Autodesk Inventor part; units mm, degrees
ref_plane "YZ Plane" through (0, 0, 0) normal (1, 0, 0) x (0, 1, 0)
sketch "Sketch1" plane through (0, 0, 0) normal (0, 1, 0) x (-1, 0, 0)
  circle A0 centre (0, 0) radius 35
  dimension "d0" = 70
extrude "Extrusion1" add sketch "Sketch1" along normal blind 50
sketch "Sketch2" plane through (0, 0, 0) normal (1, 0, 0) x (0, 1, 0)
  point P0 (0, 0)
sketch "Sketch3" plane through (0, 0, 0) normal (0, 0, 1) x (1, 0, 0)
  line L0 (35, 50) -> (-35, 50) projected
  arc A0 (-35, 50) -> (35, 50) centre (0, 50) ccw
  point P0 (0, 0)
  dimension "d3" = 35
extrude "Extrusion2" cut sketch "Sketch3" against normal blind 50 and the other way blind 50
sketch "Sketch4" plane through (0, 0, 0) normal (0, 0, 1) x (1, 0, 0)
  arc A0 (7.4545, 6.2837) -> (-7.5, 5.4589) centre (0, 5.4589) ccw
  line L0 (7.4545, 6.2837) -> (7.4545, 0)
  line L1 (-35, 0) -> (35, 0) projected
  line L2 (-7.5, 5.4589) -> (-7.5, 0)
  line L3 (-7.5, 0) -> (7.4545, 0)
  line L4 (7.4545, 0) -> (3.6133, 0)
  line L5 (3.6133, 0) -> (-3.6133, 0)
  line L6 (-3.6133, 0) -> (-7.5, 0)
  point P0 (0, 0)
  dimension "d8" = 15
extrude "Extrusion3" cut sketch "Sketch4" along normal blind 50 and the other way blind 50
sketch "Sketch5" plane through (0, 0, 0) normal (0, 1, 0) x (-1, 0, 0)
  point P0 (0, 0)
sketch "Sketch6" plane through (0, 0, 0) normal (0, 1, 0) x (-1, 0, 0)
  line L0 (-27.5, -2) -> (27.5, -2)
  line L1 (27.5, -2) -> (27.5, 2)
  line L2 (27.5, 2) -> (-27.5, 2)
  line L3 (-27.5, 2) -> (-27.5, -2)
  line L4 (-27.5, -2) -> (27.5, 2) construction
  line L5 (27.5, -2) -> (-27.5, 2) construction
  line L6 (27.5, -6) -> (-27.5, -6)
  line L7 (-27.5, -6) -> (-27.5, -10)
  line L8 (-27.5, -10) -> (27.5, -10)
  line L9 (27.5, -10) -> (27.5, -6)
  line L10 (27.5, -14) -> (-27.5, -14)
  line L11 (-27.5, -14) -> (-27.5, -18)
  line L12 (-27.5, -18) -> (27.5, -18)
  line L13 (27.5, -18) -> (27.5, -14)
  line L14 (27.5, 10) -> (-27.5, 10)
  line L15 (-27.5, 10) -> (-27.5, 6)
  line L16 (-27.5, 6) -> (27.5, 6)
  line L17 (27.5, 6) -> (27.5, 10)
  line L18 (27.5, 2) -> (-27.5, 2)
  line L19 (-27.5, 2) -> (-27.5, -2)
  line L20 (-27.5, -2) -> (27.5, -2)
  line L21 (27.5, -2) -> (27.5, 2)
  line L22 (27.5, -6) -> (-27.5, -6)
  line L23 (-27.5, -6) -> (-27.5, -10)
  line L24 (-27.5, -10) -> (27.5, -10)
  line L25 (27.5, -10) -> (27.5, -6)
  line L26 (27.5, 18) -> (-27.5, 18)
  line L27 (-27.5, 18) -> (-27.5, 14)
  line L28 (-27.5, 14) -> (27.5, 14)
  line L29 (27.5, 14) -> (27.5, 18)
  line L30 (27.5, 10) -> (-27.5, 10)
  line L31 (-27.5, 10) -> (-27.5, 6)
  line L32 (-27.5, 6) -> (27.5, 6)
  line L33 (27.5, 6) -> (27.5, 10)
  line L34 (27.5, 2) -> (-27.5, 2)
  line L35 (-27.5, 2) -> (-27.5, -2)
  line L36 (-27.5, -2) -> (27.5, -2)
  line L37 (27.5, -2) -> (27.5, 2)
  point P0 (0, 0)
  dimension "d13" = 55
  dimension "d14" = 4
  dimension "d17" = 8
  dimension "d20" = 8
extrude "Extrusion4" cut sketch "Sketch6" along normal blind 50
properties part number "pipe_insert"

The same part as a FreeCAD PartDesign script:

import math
import FreeCAD as App
import Part
import Sketcher

V = App.Vector

doc = App.newDocument("Part")
body = doc.addObject("PartDesign::Body", "Body")

sketch1 = body.newObject("Sketcher::SketchObject", "Sketch")
sketch1.AttachmentSupport = (doc.getObject("XZ_Plane"), [""])
sketch1.MapMode = "FlatFace"
sketch1.addGeometry(Part.Circle(V(0, 0, 0), V(0, 0, 1), 35), False)
sketch1.addConstraint(Sketcher.Constraint("Coincident", 0, 3, -1, 1))
sketch1.addConstraint(Sketcher.Constraint("Diameter", 0, 70.0))
pad1 = body.newObject("PartDesign::Pad", "Pad")
pad1.Profile = sketch1
pad1.Length = 50
pad1.Reversed = True

sketch2 = body.newObject("Sketcher::SketchObject", "Sketch001")
sketch2.AttachmentSupport = (doc.getObject("XY_Plane"), [""])
sketch2.MapMode = "FlatFace"
sketch2.addGeometry(Part.ArcOfCircle(Part.Circle(V(0, 50, 0), V(0, 0, 1), 35), math.radians(180), math.radians(360)), False)
sketch2.addGeometry(Part.LineSegment(V(35, 50, 0), V(-35, 50, 0)), False)
sketch2.addConstraint(Sketcher.Constraint("Coincident", 0, 1, 1, 2))
sketch2.addConstraint(Sketcher.Constraint("Coincident", 1, 1, 0, 2))
sketch2.addConstraint(Sketcher.Constraint("Horizontal", 1))
sketch2.addConstraint(Sketcher.Constraint("PointOnObject", 0, 3, -2))
sketch2.addConstraint(Sketcher.Constraint("Radius", 0, 35.0))
sketch2.addConstraint(Sketcher.Constraint("DistanceY", -1, 1, 0, 3, 50.0))
sketch2.addConstraint(Sketcher.Constraint("DistanceY", -1, 1, 0, 1, 50.0))
pocket1 = body.newObject("PartDesign::Pocket", "Pocket")
pocket1.Profile = sketch2
pocket1.Type = "ThroughAll"
pocket1.Midplane = True

sketch3 = body.newObject("Sketcher::SketchObject", "Sketch002")
sketch3.AttachmentSupport = (doc.getObject("XY_Plane"), [""])
sketch3.MapMode = "FlatFace"
sketch3.addGeometry(Part.LineSegment(V(7, 0, 0), V(7, 6, 0)), False)
sketch3.addGeometry(Part.ArcOfCircle(Part.Circle(V(0, 5, 0), V(0, 0, 1), 7), math.radians(6), math.radians(180)), False)
sketch3.addGeometry(Part.LineSegment(V(-8, 5, 0), V(-8, 0, 0)), False)
sketch3.addGeometry(Part.LineSegment(V(-8, 0, 0), V(7, 0, 0)), False)
sketch3.addConstraint(Sketcher.Constraint("Coincident", 0, 2, 1, 1))
sketch3.addConstraint(Sketcher.Constraint("Tangent", 1, 2, 2, 1))
sketch3.addConstraint(Sketcher.Constraint("Coincident", 2, 2, 3, 1))
sketch3.addConstraint(Sketcher.Constraint("Coincident", 3, 2, 0, 1))
sketch3.addConstraint(Sketcher.Constraint("Vertical", 0))
sketch3.addConstraint(Sketcher.Constraint("Vertical", 2))
sketch3.addConstraint(Sketcher.Constraint("Horizontal", 3))
sketch3.addConstraint(Sketcher.Constraint("PointOnObject", 1, 3, -2))
sketch3.addConstraint(Sketcher.Constraint("PointOnObject", 2, 2, -1))
sketch3.addConstraint(Sketcher.Constraint("Radius", 1, 7.5))
sketch3.addConstraint(Sketcher.Constraint("DistanceY", 2, 2, 2, 1, 5.459))
sketch3.addConstraint(Sketcher.Constraint("DistanceX", 3, 1, 3, 2, 14.9545))
pocket2 = body.newObject("PartDesign::Pocket", "Pocket001")
pocket2.Profile = sketch3
pocket2.Type = "ThroughAll"
pocket2.Midplane = True

sketch4 = body.newObject("Sketcher::SketchObject", "Sketch003")
sketch4.AttachmentSupport = (doc.getObject("XZ_Plane"), [""])
sketch4.MapMode = "FlatFace"
sketch4.addGeometry(Part.LineSegment(V(27.5, 2, 0), V(27.5, -2, 0)), False)
sketch4.addGeometry(Part.LineSegment(V(27.5, -2, 0), V(-27.5, -2, 0)), False)
sketch4.addGeometry(Part.LineSegment(V(-27.5, -2, 0), V(-27.5, 2, 0)), False)
sketch4.addGeometry(Part.LineSegment(V(-27.5, 2, 0), V(27.5, 2, 0)), False)
sketch4.addGeometry(Part.LineSegment(V(-27.5, -10, 0), V(-27.5, -6, 0)), False)
sketch4.addGeometry(Part.LineSegment(V(-27.5, -6, 0), V(27.5, -6, 0)), False)
sketch4.addGeometry(Part.LineSegment(V(27.5, -6, 0), V(27.5, -10, 0)), False)
sketch4.addGeometry(Part.LineSegment(V(27.5, -10, 0), V(-27.5, -10, 0)), False)
sketch4.addGeometry(Part.LineSegment(V(-27.5, -18, 0), V(-27.5, -14, 0)), False)
sketch4.addGeometry(Part.LineSegment(V(-27.5, -14, 0), V(27.5, -14, 0)), False)
sketch4.addGeometry(Part.LineSegment(V(27.5, -14, 0), V(27.5, -18, 0)), False)
sketch4.addGeometry(Part.LineSegment(V(27.5, -18, 0), V(-27.5, -18, 0)), False)
sketch4.addGeometry(Part.LineSegment(V(-27.5, 6, 0), V(-27.5, 10, 0)), False)
sketch4.addGeometry(Part.LineSegment(V(-27.5, 10, 0), V(27.5, 10, 0)), False)
sketch4.addGeometry(Part.LineSegment(V(27.5, 10, 0), V(27.5, 6, 0)), False)
sketch4.addGeometry(Part.LineSegment(V(27.5, 6, 0), V(-27.5, 6, 0)), False)
sketch4.addGeometry(Part.LineSegment(V(-27.5, 14, 0), V(-27.5, 18, 0)), False)
sketch4.addGeometry(Part.LineSegment(V(-27.5, 18, 0), V(27.5, 18, 0)), False)
sketch4.addGeometry(Part.LineSegment(V(27.5, 18, 0), V(27.5, 14, 0)), False)
sketch4.addGeometry(Part.LineSegment(V(27.5, 14, 0), V(-27.5, 14, 0)), False)
sketch4.addConstraint(Sketcher.Constraint("Coincident", 0, 2, 1, 1))
sketch4.addConstraint(Sketcher.Constraint("Coincident", 1, 2, 2, 1))
sketch4.addConstraint(Sketcher.Constraint("Coincident", 2, 2, 3, 1))
sketch4.addConstraint(Sketcher.Constraint("Coincident", 3, 2, 0, 1))
sketch4.addConstraint(Sketcher.Constraint("Coincident", 4, 2, 5, 1))
sketch4.addConstraint(Sketcher.Constraint("Coincident", 5, 2, 6, 1))
sketch4.addConstraint(Sketcher.Constraint("Coincident", 6, 2, 7, 1))
sketch4.addConstraint(Sketcher.Constraint("Coincident", 7, 2, 4, 1))
sketch4.addConstraint(Sketcher.Constraint("Coincident", 8, 2, 9, 1))
sketch4.addConstraint(Sketcher.Constraint("Coincident", 9, 2, 10, 1))
sketch4.addConstraint(Sketcher.Constraint("Coincident", 10, 2, 11, 1))
sketch4.addConstraint(Sketcher.Constraint("Coincident", 11, 2, 8, 1))
sketch4.addConstraint(Sketcher.Constraint("Coincident", 12, 2, 13, 1))
sketch4.addConstraint(Sketcher.Constraint("Coincident", 13, 2, 14, 1))
sketch4.addConstraint(Sketcher.Constraint("Coincident", 14, 2, 15, 1))
sketch4.addConstraint(Sketcher.Constraint("Coincident", 15, 2, 12, 1))
sketch4.addConstraint(Sketcher.Constraint("Coincident", 16, 2, 17, 1))
sketch4.addConstraint(Sketcher.Constraint("Coincident", 17, 2, 18, 1))
sketch4.addConstraint(Sketcher.Constraint("Coincident", 18, 2, 19, 1))
sketch4.addConstraint(Sketcher.Constraint("Coincident", 19, 2, 16, 1))
sketch4.addConstraint(Sketcher.Constraint("Vertical", 0))
sketch4.addConstraint(Sketcher.Constraint("Horizontal", 1))
sketch4.addConstraint(Sketcher.Constraint("Vertical", 2))
sketch4.addConstraint(Sketcher.Constraint("Horizontal", 3))
sketch4.addConstraint(Sketcher.Constraint("Vertical", 4))
sketch4.addConstraint(Sketcher.Constraint("Horizontal", 5))
sketch4.addConstraint(Sketcher.Constraint("Vertical", 6))
sketch4.addConstraint(Sketcher.Constraint("Horizontal", 7))
sketch4.addConstraint(Sketcher.Constraint("Vertical", 8))
sketch4.addConstraint(Sketcher.Constraint("Horizontal", 9))
sketch4.addConstraint(Sketcher.Constraint("Vertical", 10))
sketch4.addConstraint(Sketcher.Constraint("Horizontal", 11))
sketch4.addConstraint(Sketcher.Constraint("Vertical", 12))
sketch4.addConstraint(Sketcher.Constraint("Horizontal", 13))
sketch4.addConstraint(Sketcher.Constraint("Vertical", 14))
sketch4.addConstraint(Sketcher.Constraint("Horizontal", 15))
sketch4.addConstraint(Sketcher.Constraint("Vertical", 16))
sketch4.addConstraint(Sketcher.Constraint("Horizontal", 17))
sketch4.addConstraint(Sketcher.Constraint("Vertical", 18))
sketch4.addConstraint(Sketcher.Constraint("Horizontal", 19))
sketch4.addConstraint(Sketcher.Constraint("Symmetric", 0, 2, 2, 2, -1, 1))
sketch4.addConstraint(Sketcher.Constraint("Symmetric", 6, 2, 12, 2, -1, 1))
sketch4.addConstraint(Sketcher.Constraint("Symmetric", 4, 2, 14, 2, -1, 1))
sketch4.addConstraint(Sketcher.Constraint("Symmetric", 10, 2, 16, 2, -1, 1))
sketch4.addConstraint(Sketcher.Constraint("Symmetric", 8, 2, 18, 2, -1, 1))
sketch4.addConstraint(Sketcher.Constraint("Vertical", 2, 2, 4, 2))
sketch4.addConstraint(Sketcher.Constraint("Vertical", 3, 2, 5, 2))
sketch4.addConstraint(Sketcher.Constraint("Vertical", 7, 2, 8, 2))
sketch4.addConstraint(Sketcher.Constraint("Vertical", 6, 2, 9, 2))
sketch4.addConstraint(Sketcher.Constraint("Equal", 2, 4))
sketch4.addConstraint(Sketcher.Constraint("Equal", 6, 8))
sketch4.addConstraint(Sketcher.Constraint("DistanceX", 1, 2, 1, 1, 55.0))
sketch4.addConstraint(Sketcher.Constraint("DistanceY", 0, 2, 0, 1, 4.0))
sketch4.addConstraint(Sketcher.Constraint("DistanceY", 4, 2, 1, 2, 4.0))
sketch4.addConstraint(Sketcher.Constraint("DistanceY", 8, 2, 7, 2, 4.0))
pocket3 = body.newObject("PartDesign::Pocket", "Pocket002")
pocket3.Profile = sketch4
pocket3.Length = 50

doc.recompute()
